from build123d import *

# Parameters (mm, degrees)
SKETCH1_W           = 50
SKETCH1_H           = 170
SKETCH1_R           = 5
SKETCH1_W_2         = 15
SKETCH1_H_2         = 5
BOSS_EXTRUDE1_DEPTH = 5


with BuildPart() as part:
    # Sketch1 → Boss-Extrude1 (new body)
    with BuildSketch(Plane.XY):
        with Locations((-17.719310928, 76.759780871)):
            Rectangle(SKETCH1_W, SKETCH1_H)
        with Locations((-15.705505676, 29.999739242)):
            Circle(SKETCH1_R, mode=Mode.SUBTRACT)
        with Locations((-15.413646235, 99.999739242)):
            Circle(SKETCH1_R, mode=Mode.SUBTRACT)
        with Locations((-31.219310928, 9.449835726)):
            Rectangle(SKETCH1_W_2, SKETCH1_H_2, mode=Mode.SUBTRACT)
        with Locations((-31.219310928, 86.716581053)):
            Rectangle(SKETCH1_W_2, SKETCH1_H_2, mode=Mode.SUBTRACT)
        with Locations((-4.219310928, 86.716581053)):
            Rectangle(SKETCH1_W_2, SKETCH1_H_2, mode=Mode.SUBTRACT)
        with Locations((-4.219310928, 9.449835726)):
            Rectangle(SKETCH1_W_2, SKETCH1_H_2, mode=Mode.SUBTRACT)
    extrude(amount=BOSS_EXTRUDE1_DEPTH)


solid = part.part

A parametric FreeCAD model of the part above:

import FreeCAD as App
import Part
import Sketcher
from FreeCAD import Vector


def add_polygon(sketch, points):
    """Adds a closed chain of lines whose ends are joined by coincident constraints."""
    first, n = sketch.GeometryCount, len(points)
    for a, b in zip(points, points[1:] + points[:1]):
        sketch.addGeometry(Part.LineSegment(App.Vector(*a, 0), App.Vector(*b, 0)), False)
    for i in range(n):
        sketch.addConstraint(Sketcher.Constraint("Coincident", first + i, 2, first + (i + 1) % n, 1))

doc = App.newDocument("Part")
body = doc.addObject("PartDesign::Body", "Body")

# Sketch on XY plane
sketch1 = doc.addObject("Sketcher::SketchObject", "Sketch")
body.addObject(sketch1)
sketch1.AttachmentSupport = (doc.XY_Plane, [""])
sketch1.MapMode = "FlatFace"
add_polygon(sketch1, [(-43, 162), (-43, -8), (7, -8), (7, 162)])  # lines 0-3
add_polygon(sketch1, [(-24, 7), (-39, 7), (-39, 12), (-24, 12)])  # lines 4-7
sketch1.addGeometry(Part.Circle(Vector(-16, 30, 0), Vector(0, 0, 1), 5), False)  # 8
add_polygon(sketch1, [(3, 7), (-12, 7), (-12, 12), (3, 12)])  # lines 9-12
add_polygon(sketch1, [(-24, 84), (-39, 84), (-39, 89), (-24, 89)])  # lines 13-16
sketch1.addGeometry(Part.Circle(Vector(-15, 100, 0), Vector(0, 0, 1), 5), False)  # 17
add_polygon(sketch1, [(3, 84), (-12, 84), (-12, 89), (3, 89)])  # lines 18-21
sketch1.addConstraint([
    Sketcher.Constraint("Vertical", 0),
    Sketcher.Constraint("Horizontal", 1),
    Sketcher.Constraint("Vertical", 2),
    Sketcher.Constraint("Horizontal", 3),
    Sketcher.Constraint("Horizontal", 4),
    Sketcher.Constraint("Vertical", 5),
    Sketcher.Constraint("Horizontal", 6),
    Sketcher.Constraint("Vertical", 7),
    Sketcher.Constraint("Horizontal", 9),
    Sketcher.Constraint("Vertical", 10),
    Sketcher.Constraint("Horizontal", 11),
    Sketcher.Constraint("Vertical", 12),
    Sketcher.Constraint("Horizontal", 13),
    Sketcher.Constraint("Vertical", 14),
    Sketcher.Constraint("Horizontal", 15),
    Sketcher.Constraint("Vertical", 16),
    Sketcher.Constraint("Horizontal", 18),
    Sketcher.Constraint("Vertical", 19),
    Sketcher.Constraint("Horizontal", 20),
    Sketcher.Constraint("Vertical", 21),
    Sketcher.Constraint("Equal", 8, 17),
    Sketcher.Constraint("Horizontal", 7, 2, 9, 2),
    Sketcher.Constraint("Horizontal", 6, 2, 10, 2),
    Sketcher.Constraint("Horizontal", 16, 2, 18, 2),
    Sketcher.Constraint("Horizontal", 15, 2, 19, 2),
    Sketcher.Constraint("Vertical", 5, 2, 13, 2),
    Sketcher.Constraint("Vertical", 7, 2, 15, 2),
    Sketcher.Constraint("Vertical", 10, 2, 18, 2),
    Sketcher.Constraint("Vertical", 12, 2, 20, 2),
    Sketcher.Constraint("Equal", 6, 9),
    Sketcher.Constraint("Equal", 12, 14),
    Sketcher.Constraint("Diameter", 8, 10.0),
    Sketcher.Constraint("DistanceX", 1, 1, 1, 2, 50.0),
    Sketcher.Constraint("DistanceX", 4, 2, 4, 1, 15.0),
    Sketcher.Constraint("DistanceY", 0, 2, 0, 1, 170.0),
    Sketcher.Constraint("DistanceY", 5, 1, 5, 2, 5.0),
    Sketcher.Constraint("DistanceY", 8, 3, 17, 3, 70.0),
    Sketcher.Constraint("DistanceX", 0, 2, 4, 2, 4.0),
    Sketcher.Constraint("DistanceX", 7, 2, 9, 2, 12.0),
    Sketcher.Constraint("DistanceY", 14, 2, 3, 2, 72.5432),
    Sketcher.Constraint("DistanceY", -1, 1, 8, 3, 29.999739),
    Sketcher.Constraint("DistanceX", 0, 2, -1, 1, 42.719311),
    Sketcher.Constraint("DistanceY", 0, 2, -1, 1, 8.240219),
    Sketcher.Constraint("DistanceX", 8, 3, 17, 3, 0.291859),
    Sketcher.Constraint("DistanceX", 8, 3, -1, 1, 15.705506),
    Sketcher.Constraint("DistanceY", -1, 1, 4, 2, 6.949836),
])
pad1 = doc.addObject("PartDesign::Pad", "Pad")
body.addObject(pad1)
pad1.Profile = sketch1
pad1.Length = 5

doc.recompute()
